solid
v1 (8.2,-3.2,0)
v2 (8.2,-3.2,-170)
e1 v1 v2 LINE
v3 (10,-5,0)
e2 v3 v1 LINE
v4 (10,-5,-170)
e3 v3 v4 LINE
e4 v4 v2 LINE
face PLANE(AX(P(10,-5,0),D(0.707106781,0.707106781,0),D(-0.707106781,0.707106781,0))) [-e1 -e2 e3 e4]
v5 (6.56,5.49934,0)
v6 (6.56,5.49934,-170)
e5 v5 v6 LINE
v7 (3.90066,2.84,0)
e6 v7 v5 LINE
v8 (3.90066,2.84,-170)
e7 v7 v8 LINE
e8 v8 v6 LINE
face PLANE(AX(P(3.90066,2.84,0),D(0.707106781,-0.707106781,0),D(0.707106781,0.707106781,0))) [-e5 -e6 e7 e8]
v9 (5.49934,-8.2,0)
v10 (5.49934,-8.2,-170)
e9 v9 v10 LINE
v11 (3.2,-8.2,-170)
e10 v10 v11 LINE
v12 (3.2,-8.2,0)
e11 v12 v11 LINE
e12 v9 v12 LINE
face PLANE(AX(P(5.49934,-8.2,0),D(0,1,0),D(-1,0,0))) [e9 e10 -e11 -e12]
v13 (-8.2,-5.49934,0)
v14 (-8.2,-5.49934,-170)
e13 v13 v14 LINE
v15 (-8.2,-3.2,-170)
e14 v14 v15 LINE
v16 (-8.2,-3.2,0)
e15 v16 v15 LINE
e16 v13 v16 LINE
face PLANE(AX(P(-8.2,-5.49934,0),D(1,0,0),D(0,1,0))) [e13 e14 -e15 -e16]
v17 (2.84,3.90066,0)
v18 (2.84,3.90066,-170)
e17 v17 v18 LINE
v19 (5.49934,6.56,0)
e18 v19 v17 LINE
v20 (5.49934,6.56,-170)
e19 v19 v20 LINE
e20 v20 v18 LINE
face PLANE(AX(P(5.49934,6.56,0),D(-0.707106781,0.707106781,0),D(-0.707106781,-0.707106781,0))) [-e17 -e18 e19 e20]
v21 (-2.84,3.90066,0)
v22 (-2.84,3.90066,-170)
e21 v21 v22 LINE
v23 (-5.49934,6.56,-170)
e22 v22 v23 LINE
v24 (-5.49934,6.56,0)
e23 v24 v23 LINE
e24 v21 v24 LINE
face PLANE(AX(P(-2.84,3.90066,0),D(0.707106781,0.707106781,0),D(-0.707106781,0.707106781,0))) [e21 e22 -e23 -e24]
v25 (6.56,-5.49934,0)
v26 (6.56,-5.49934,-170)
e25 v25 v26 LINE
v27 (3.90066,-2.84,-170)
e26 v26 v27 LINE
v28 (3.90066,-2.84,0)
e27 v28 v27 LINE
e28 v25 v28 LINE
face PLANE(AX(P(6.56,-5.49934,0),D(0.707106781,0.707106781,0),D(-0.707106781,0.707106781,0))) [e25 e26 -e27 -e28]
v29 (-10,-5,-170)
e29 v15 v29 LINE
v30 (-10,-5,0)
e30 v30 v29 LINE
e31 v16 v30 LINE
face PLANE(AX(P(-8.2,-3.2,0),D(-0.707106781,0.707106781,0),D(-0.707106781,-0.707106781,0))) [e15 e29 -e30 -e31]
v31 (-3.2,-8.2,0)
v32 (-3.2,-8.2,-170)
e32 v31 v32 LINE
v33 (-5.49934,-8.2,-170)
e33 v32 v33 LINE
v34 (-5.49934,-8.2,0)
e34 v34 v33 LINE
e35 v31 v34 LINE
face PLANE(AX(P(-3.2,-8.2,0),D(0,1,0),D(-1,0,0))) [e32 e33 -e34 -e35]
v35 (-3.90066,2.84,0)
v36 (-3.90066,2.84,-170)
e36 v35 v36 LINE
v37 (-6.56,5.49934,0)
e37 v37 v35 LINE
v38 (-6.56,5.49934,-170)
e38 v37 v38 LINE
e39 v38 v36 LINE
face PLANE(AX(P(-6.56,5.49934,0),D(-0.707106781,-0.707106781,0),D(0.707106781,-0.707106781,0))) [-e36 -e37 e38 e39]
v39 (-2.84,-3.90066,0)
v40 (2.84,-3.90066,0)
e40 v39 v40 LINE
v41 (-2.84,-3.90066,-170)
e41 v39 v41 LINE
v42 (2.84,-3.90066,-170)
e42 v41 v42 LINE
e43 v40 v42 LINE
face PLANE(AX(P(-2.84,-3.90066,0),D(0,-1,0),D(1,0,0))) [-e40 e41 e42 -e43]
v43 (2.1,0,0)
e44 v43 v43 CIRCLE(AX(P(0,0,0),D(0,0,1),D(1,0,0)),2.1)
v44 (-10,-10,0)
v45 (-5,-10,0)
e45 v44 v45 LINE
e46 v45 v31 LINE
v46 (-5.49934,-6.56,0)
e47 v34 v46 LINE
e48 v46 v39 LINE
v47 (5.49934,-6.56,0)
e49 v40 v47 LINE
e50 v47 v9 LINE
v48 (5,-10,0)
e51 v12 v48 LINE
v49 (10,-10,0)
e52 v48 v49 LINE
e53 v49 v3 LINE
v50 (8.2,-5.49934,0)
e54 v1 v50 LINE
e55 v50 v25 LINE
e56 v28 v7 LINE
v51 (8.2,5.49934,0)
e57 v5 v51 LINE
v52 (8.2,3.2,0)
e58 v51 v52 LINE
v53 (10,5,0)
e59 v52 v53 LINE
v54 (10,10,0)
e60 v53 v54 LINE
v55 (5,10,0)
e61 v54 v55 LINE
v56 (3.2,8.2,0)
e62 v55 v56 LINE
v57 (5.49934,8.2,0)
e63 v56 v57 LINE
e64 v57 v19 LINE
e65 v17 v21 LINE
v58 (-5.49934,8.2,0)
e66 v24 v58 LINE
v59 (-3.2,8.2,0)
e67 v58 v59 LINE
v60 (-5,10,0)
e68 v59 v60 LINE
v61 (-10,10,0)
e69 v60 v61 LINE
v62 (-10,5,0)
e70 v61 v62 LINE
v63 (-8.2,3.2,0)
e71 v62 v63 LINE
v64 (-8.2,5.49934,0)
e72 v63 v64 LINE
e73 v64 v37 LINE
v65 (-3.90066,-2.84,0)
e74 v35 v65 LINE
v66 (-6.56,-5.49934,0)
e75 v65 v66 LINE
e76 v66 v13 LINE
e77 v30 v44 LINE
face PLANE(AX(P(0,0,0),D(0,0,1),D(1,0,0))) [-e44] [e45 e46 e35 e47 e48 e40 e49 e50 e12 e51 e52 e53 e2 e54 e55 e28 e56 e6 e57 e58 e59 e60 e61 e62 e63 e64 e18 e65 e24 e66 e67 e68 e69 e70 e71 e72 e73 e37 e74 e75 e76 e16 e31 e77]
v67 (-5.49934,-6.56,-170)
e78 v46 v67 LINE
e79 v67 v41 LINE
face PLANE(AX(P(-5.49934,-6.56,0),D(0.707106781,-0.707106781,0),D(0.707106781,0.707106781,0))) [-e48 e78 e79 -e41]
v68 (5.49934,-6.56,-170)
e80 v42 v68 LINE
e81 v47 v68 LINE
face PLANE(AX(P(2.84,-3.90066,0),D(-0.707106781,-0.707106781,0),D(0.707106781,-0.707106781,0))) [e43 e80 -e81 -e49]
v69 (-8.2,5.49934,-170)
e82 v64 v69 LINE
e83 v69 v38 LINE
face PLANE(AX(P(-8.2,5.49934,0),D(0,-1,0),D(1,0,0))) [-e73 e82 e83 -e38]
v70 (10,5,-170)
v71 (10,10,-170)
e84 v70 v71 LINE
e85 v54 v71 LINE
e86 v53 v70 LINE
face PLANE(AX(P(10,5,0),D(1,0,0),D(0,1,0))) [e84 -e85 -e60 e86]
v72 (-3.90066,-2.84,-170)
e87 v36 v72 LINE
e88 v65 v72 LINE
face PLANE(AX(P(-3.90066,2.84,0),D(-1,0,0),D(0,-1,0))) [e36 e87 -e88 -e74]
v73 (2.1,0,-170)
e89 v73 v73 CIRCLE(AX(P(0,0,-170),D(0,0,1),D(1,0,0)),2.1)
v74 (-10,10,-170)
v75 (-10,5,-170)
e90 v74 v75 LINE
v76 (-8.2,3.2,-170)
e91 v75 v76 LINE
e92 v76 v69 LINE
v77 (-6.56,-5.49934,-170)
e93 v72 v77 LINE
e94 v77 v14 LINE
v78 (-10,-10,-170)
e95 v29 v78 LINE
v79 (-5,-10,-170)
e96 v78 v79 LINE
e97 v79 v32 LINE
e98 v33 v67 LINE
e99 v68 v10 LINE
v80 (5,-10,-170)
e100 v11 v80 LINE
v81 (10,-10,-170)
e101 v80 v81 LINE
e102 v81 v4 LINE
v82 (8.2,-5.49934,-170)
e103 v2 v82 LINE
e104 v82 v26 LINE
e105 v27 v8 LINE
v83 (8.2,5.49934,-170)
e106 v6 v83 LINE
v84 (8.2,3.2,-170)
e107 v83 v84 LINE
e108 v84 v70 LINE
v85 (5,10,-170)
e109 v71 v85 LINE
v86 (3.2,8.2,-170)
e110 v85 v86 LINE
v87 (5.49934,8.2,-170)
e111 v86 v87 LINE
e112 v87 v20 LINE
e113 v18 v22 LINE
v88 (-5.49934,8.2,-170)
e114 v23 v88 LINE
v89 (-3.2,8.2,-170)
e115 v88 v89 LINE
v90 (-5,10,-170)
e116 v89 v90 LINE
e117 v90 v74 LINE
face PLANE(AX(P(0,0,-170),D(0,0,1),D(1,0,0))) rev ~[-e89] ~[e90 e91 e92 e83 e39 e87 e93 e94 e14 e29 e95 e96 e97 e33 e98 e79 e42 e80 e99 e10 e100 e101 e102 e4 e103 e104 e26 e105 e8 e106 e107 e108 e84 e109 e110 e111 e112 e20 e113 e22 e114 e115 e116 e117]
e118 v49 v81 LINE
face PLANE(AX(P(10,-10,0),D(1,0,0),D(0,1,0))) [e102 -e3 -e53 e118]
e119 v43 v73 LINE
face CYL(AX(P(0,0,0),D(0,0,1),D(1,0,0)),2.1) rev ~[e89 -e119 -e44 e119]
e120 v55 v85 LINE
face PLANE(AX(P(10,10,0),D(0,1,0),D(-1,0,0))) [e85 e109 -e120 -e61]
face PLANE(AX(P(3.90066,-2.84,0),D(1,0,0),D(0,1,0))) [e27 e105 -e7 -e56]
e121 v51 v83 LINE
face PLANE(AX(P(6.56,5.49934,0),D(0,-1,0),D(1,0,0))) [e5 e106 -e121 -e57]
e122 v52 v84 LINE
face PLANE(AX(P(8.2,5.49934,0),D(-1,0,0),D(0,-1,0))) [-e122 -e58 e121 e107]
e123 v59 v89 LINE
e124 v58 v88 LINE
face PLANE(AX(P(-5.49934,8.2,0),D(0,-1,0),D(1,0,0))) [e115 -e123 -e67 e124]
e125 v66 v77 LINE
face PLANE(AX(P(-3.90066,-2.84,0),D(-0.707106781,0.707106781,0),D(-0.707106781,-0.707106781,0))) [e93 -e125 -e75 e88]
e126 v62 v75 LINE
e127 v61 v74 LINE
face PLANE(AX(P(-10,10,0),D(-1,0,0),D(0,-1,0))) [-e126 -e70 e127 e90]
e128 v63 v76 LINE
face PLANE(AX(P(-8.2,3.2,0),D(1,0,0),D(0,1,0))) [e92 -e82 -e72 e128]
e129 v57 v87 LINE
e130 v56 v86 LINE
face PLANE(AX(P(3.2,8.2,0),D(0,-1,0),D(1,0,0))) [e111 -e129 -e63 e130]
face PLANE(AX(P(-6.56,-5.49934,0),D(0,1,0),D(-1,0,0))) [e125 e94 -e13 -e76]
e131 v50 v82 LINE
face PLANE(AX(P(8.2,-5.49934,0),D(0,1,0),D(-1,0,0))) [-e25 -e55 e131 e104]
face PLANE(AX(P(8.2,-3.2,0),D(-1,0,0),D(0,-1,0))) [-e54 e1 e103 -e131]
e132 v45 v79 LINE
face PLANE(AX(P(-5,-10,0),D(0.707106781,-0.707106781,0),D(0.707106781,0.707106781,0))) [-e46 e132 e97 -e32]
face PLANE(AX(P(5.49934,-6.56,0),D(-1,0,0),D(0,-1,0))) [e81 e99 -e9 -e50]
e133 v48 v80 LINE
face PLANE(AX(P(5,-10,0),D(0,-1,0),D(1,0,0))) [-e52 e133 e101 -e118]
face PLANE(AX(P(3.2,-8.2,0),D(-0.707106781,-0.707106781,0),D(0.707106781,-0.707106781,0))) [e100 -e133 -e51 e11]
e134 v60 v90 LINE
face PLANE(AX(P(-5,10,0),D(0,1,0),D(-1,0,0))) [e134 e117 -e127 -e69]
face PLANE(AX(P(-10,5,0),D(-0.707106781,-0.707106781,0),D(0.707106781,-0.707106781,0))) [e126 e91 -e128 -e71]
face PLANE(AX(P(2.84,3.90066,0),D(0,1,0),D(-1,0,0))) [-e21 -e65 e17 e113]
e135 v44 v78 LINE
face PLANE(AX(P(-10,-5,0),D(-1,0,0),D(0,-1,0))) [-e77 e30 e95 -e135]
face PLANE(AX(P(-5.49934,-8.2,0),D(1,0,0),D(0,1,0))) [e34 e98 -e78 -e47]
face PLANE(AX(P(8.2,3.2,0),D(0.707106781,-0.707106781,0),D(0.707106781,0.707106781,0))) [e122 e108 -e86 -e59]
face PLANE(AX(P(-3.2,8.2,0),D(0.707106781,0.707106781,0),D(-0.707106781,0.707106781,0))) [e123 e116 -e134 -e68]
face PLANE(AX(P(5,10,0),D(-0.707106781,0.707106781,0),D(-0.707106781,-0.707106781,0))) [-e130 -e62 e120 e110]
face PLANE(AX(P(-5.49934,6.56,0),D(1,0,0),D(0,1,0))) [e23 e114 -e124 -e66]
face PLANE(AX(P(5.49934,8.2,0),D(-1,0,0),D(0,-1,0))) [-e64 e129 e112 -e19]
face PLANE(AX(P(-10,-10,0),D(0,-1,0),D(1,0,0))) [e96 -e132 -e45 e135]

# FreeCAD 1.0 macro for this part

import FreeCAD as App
import Part
import Sketcher
from FreeCAD import Vector

doc = App.newDocument("Part")
body = doc.addObject("PartDesign::Body", "Body")

# Sketch on XY plane
sketch1 = body.newObject("Sketcher::SketchObject", "Sketch")
sketch1.AttachmentSupport = (doc.getObject("XY_Plane"), [""])
sketch1.MapMode = "FlatFace"
sketch1.addGeometry(Part.LineSegment(Vector(-10, 10, 0), Vector(-10, 5, 0)), False)
sketch1.addGeometry(Part.LineSegment(Vector(-10, 5, 0), Vector(-8.2, 3.2, 0)), False)
sketch1.addGeometry(Part.LineSegment(Vector(-8.2, 3.2, 0), Vector(-8.2, 5.5, 0)), False)
sketch1.addGeometry(Part.LineSegment(Vector(-8.2, 5.5, 0), Vector(-6.6, 5.5, 0)), False)
sketch1.addGeometry(Part.LineSegment(Vector(-6.6, 5.5, 0), Vector(-3.9, 2.8, 0)), False)
sketch1.addGeometry(Part.LineSegment(Vector(-3.9, 2.8, 0), Vector(-3.9, -2.8, 0)), False)
sketch1.addGeometry(Part.LineSegment(Vector(-3.9, -2.8, 0), Vector(-6.6, -5.5, 0)), False)
sketch1.addGeometry(Part.LineSegment(Vector(-6.6, -5.5, 0), Vector(-8.2, -5.5, 0)), False)
sketch1.addGeometry(Part.LineSegment(Vector(-8.2, -5.5, 0), Vector(-8.2, -3.2, 0)), False)
sketch1.addGeometry(Part.LineSegment(Vector(-8.2, -3.2, 0), Vector(-10, -5, 0)), False)
sketch1.addGeometry(Part.LineSegment(Vector(-10, -5, 0), Vector(-10, -10, 0)), False)
sketch1.addGeometry(Part.LineSegment(Vector(-10, -10, 0), Vector(-5, -10, 0)), False)
sketch1.addGeometry(Part.LineSegment(Vector(-5, -10, 0), Vector(-3.2, -8.2, 0)), False)
sketch1.addGeometry(Part.LineSegment(Vector(-3.2, -8.2, 0), Vector(-5.5, -8.2, 0)), False)
sketch1.addGeometry(Part.LineSegment(Vector(-5.5, -8.2, 0), Vector(-5.5, -6.6, 0)), False)
sketch1.addGeometry(Part.LineSegment(Vector(-5.5, -6.6, 0), Vector(-2.8, -3.9, 0)), False)
sketch1.addGeometry(Part.LineSegment(Vector(-2.8, -3.9, 0), Vector(2.8, -3.9, 0)), False)
sketch1.addGeometry(Part.LineSegment(Vector(2.8, -3.9, 0), Vector(5.5, -6.6, 0)), False)
sketch1.addGeometry(Part.LineSegment(Vector(5.5, -6.6, 0), Vector(5.5, -8.2, 0)), False)
sketch1.addGeometry(Part.LineSegment(Vector(5.5, -8.2, 0), Vector(3.2, -8.2, 0)), False)
sketch1.addGeometry(Part.LineSegment(Vector(3.2, -8.2, 0), Vector(5, -10, 0)), False)
sketch1.addGeometry(Part.LineSegment(Vector(5, -10, 0), Vector(10, -10, 0)), False)
sketch1.addGeometry(Part.LineSegment(Vector(10, -10, 0), Vector(10, -5, 0)), False)
sketch1.addGeometry(Part.LineSegment(Vector(10, -5, 0), Vector(8.2, -3.2, 0)), False)
sketch1.addGeometry(Part.LineSegment(Vector(8.2, -3.2, 0), Vector(8.2, -5.5, 0)), False)
sketch1.addGeometry(Part.LineSegment(Vector(8.2, -5.5, 0), Vector(6.6, -5.5, 0)), False)
sketch1.addGeometry(Part.LineSegment(Vector(6.6, -5.5, 0), Vector(3.9, -2.8, 0)), False)
sketch1.addGeometry(Part.LineSegment(Vector(3.9, -2.8, 0), Vector(3.9, 2.8, 0)), False)
sketch1.addGeometry(Part.LineSegment(Vector(3.9, 2.8, 0), Vector(6.6, 5.5, 0)), False)
sketch1.addGeometry(Part.LineSegment(Vector(6.6, 5.5, 0), Vector(8.2, 5.5, 0)), False)
sketch1.addGeometry(Part.LineSegment(Vector(8.2, 5.5, 0), Vector(8.2, 3.2, 0)), False)
sketch1.addGeometry(Part.LineSegment(Vector(8.2, 3.2, 0), Vector(10, 5, 0)), False)
sketch1.addGeometry(Part.LineSegment(Vector(10, 5, 0), Vector(10, 10, 0)), False)
sketch1.addGeometry(Part.LineSegment(Vector(10, 10, 0), Vector(5, 10, 0)), False)
sketch1.addGeometry(Part.LineSegment(Vector(5, 10, 0), Vector(3.2, 8.2, 0)), False)
sketch1.addGeometry(Part.LineSegment(Vector(3.2, 8.2, 0), Vector(5.5, 8.2, 0)), False)
sketch1.addGeometry(Part.LineSegment(Vector(5.5, 8.2, 0), Vector(5.5, 6.6, 0)), False)
sketch1.addGeometry(Part.LineSegment(Vector(5.5, 6.6, 0), Vector(2.8, 3.9, 0)), False)
sketch1.addGeometry(Part.LineSegment(Vector(2.8, 3.9, 0), Vector(-2.8, 3.9, 0)), False)
sketch1.addGeometry(Part.LineSegment(Vector(-2.8, 3.9, 0), Vector(-5.5, 6.6, 0)), False)
sketch1.addGeometry(Part.LineSegment(Vector(-5.5, 6.6, 0), Vector(-5.5, 8.2, 0)), False)
sketch1.addGeometry(Part.LineSegment(Vector(-5.5, 8.2, 0), Vector(-3.2, 8.2, 0)), False)
sketch1.addGeometry(Part.LineSegment(Vector(-3.2, 8.2, 0), Vector(-5, 10, 0)), False)
sketch1.addGeometry(Part.LineSegment(Vector(-5, 10, 0), Vector(-10, 10, 0)), False)
sketch1.addGeometry(Part.Circle(Vector(0, 0, 0), Vector(0, 0, 1), 2.1), False)
sketch1.addConstraint(Sketcher.Constraint("Coincident", 0, 2, 1, 1))
sketch1.addConstraint(Sketcher.Constraint("Coincident", 1, 2, 2, 1))
sketch1.addConstraint(Sketcher.Constraint("Coincident", 2, 2, 3, 1))
sketch1.addConstraint(Sketcher.Constraint("Coincident", 3, 2, 4, 1))
sketch1.addConstraint(Sketcher.Constraint("Coincident", 4, 2, 5, 1))
sketch1.addConstraint(Sketcher.Constraint("Coincident", 5, 2, 6, 1))
sketch1.addConstraint(Sketcher.Constraint("Coincident", 6, 2, 7, 1))
sketch1.addConstraint(Sketcher.Constraint("Coincident", 7, 2, 8, 1))
sketch1.addConstraint(Sketcher.Constraint("Coincident", 8, 2, 9, 1))
sketch1.addConstraint(Sketcher.Constraint("Coincident", 9, 2, 10, 1))
sketch1.addConstraint(Sketcher.Constraint("Coincident", 10, 2, 11, 1))
sketch1.addConstraint(Sketcher.Constraint("Coincident", 11, 2, 12, 1))
sketch1.addConstraint(Sketcher.Constraint("Coincident", 12, 2, 13, 1))
sketch1.addConstraint(Sketcher.Constraint("Coincident", 13, 2, 14, 1))
sketch1.addConstraint(Sketcher.Constraint("Coincident", 14, 2, 15, 1))
sketch1.addConstraint(Sketcher.Constraint("Coincident", 15, 2, 16, 1))
sketch1.addConstraint(Sketcher.Constraint("Coincident", 16, 2, 17, 1))
sketch1.addConstraint(Sketcher.Constraint("Coincident", 17, 2, 18, 1))
sketch1.addConstraint(Sketcher.Constraint("Coincident", 18, 2, 19, 1))
sketch1.addConstraint(Sketcher.Constraint("Coincident", 19, 2, 20, 1))
sketch1.addConstraint(Sketcher.Constraint("Coincident", 20, 2, 21, 1))
sketch1.addConstraint(Sketcher.Constraint("Coincident", 21, 2, 22, 1))
sketch1.addConstraint(Sketcher.Constraint("Coincident", 22, 2, 23, 1))
sketch1.addConstraint(Sketcher.Constraint("Coincident", 23, 2, 24, 1))
sketch1.addConstraint(Sketcher.Constraint("Coincident", 24, 2, 25, 1))
sketch1.addConstraint(Sketcher.Constraint("Coincident", 25, 2, 26, 1))
sketch1.addConstraint(Sketcher.Constraint("Coincident", 26, 2, 27, 1))
sketch1.addConstraint(Sketcher.Constraint("Coincident", 27, 2, 28, 1))
sketch1.addConstraint(Sketcher.Constraint("Coincident", 28, 2, 29, 1))
sketch1.addConstraint(Sketcher.Constraint("Coincident", 29, 2, 30, 1))
sketch1.addConstraint(Sketcher.Constraint("Coincident", 30, 2, 31, 1))
sketch1.addConstraint(Sketcher.Constraint("Coincident", 31, 2, 32, 1))
sketch1.addConstraint(Sketcher.Constraint("Coincident", 32, 2, 33, 1))
sketch1.addConstraint(Sketcher.Constraint("Coincident", 33, 2, 34, 1))
sketch1.addConstraint(Sketcher.Constraint("Coincident", 34, 2, 35, 1))
sketch1.addConstraint(Sketcher.Constraint("Coincident", 35, 2, 36, 1))
sketch1.addConstraint(Sketcher.Constraint("Coincident", 36, 2, 37, 1))
sketch1.addConstraint(Sketcher.Constraint("Coincident", 37, 2, 38, 1))
sketch1.addConstraint(Sketcher.Constraint("Coincident", 38, 2, 39, 1))
sketch1.addConstraint(Sketcher.Constraint("Coincident", 39, 2, 40, 1))
sketch1.addConstraint(Sketcher.Constraint("Coincident", 40, 2, 41, 1))
sketch1.addConstraint(Sketcher.Constraint("Coincident", 41, 2, 42, 1))
sketch1.addConstraint(Sketcher.Constraint("Coincident", 42, 2, 43, 1))
sketch1.addConstraint(Sketcher.Constraint("Coincident", 43, 2, 0, 1))
sketch1.addConstraint(Sketcher.Constraint("Vertical", 0))
sketch1.addConstraint(Sketcher.Constraint("Vertical", 2))
sketch1.addConstraint(Sketcher.Constraint("Horizontal", 3))
sketch1.addConstraint(Sketcher.Constraint("Vertical", 5))
sketch1.addConstraint(Sketcher.Constraint("Horizontal", 7))
sketch1.addConstraint(Sketcher.Constraint("Vertical", 8))
sketch1.addConstraint(Sketcher.Constraint("Vertical", 10))
sketch1.addConstraint(Sketcher.Constraint("Horizontal", 11))
sketch1.addConstraint(Sketcher.Constraint("Horizontal", 13))
sketch1.addConstraint(Sketcher.Constraint("Vertical", 14))
sketch1.addConstraint(Sketcher.Constraint("Horizontal", 16))
sketch1.addConstraint(Sketcher.Constraint("Vertical", 18))
sketch1.addConstraint(Sketcher.Constraint("Horizontal", 19))
sketch1.addConstraint(Sketcher.Constraint("Horizontal", 21))
sketch1.addConstraint(Sketcher.Constraint("Vertical", 22))
sketch1.addConstraint(Sketcher.Constraint("Vertical", 24))
sketch1.addConstraint(Sketcher.Constraint("Horizontal", 25))
sketch1.addConstraint(Sketcher.Constraint("Vertical", 27))
sketch1.addConstraint(Sketcher.Constraint("Horizontal", 29))
sketch1.addConstraint(Sketcher.Constraint("Vertical", 30))
sketch1.addConstraint(Sketcher.Constraint("Vertical", 32))
sketch1.addConstraint(Sketcher.Constraint("Horizontal", 33))
sketch1.addConstraint(Sketcher.Constraint("Horizontal", 35))
sketch1.addConstraint(Sketcher.Constraint("Vertical", 36))
sketch1.addConstraint(Sketcher.Constraint("Horizontal", 38))
sketch1.addConstraint(Sketcher.Constraint("Vertical", 40))
sketch1.addConstraint(Sketcher.Constraint("Horizontal", 41))
sketch1.addConstraint(Sketcher.Constraint("Horizontal", 43))
sketch1.addConstraint(Sketcher.Constraint("Coincident", 44, 3, -1, 1))
sketch1.addConstraint(Sketcher.Constraint("Symmetric", 0, 2, 22, 2, -1, 1))
sketch1.addConstraint(Sketcher.Constraint("Symmetric", 1, 2, 23, 2, -1, 1))
sketch1.addConstraint(Sketcher.Constraint("Symmetric", 3, 2, 25, 2, -1, 1))
sketch1.addConstraint(Sketcher.Constraint("Symmetric", 4, 2, 26, 2, -1, 1))
sketch1.addConstraint(Sketcher.Constraint("Symmetric", 6, 2, 28, 2, -1, 1))
sketch1.addConstraint(Sketcher.Constraint("Symmetric", 8, 2, 30, 2, -1, 1))
sketch1.addConstraint(Sketcher.Constraint("Symmetric", 9, 2, 31, 2, -1, 1))
sketch1.addConstraint(Sketcher.Constraint("Symmetric", 11, 2, 33, 2, -1, 1))
sketch1.addConstraint(Sketcher.Constraint("Symmetric", 12, 2, 34, 2, -1, 1))
sketch1.addConstraint(Sketcher.Constraint("Symmetric", 14, 2, 36, 2, -1, 1))
sketch1.addConstraint(Sketcher.Constraint("Symmetric", 15, 2, 37, 2, -1, 1))
sketch1.addConstraint(Sketcher.Constraint("Symmetric", 17, 2, 39, 2, -1, 1))
sketch1.addConstraint(Sketcher.Constraint("Symmetric", 19, 2, 41, 2, -1, 1))
sketch1.addConstraint(Sketcher.Constraint("Symmetric", 20, 2, 42, 2, -1, 1))
sketch1.addConstraint(Sketcher.Constraint("Symmetric", 14, 2, 17, 2, -2))
sketch1.addConstraint(Sketcher.Constraint("Symmetric", 12, 2, 19, 2, -2))
sketch1.addConstraint(Sketcher.Constraint("Symmetric", 11, 2, 20, 2, -2))
sketch1.addConstraint(Sketcher.Constraint("Symmetric", 9, 2, 22, 2, -2))
sketch1.addConstraint(Sketcher.Constraint("Symmetric", 8, 2, 23, 2, -2))
sketch1.addConstraint(Sketcher.Constraint("Symmetric", 6, 2, 25, 2, -2))
sketch1.addConstraint(Sketcher.Constraint("Parallel", 1, 4))
sketch1.addConstraint(Sketcher.Constraint("Perpendicular", 4, 6))
sketch1.addConstraint(Sketcher.Constraint("Parallel", 6, 9))
sketch1.addConstraint(Sketcher.Constraint("Parallel", 9, 12))
sketch1.addConstraint(Sketcher.Constraint("Parallel", 12, 15))
sketch1.addConstraint(Sketcher.Constraint("Perpendicular", 15, 17))
sketch1.addConstraint(Sketcher.Constraint("Perpendicular", 26, 28))
sketch1.addConstraint(Sketcher.Constraint("Perpendicular", 37, 39))
sketch1.addConstraint(Sketcher.Constraint("Equal", 43, 0))
sketch1.addConstraint(Sketcher.Constraint("Equal", 41, 2))
sketch1.addConstraint(Sketcher.Constraint("Equal", 38, 5))
sketch1.addConstraint(Sketcher.Constraint("Equal", 29, 14))
sketch1.addConstraint(Sketcher.Constraint("Equal", 9, 12))
sketch1.addConstraint(Sketcher.Constraint("Equal", 6, 15))
sketch1.addConstraint(Sketcher.Constraint("Diameter", 44, 4.2))
sketch1.addConstraint(Sketcher.Constraint("DistanceX", 11, 1, 11, 2, 5.0))
sketch1.addConstraint(Sketcher.Constraint("DistanceX", 0, 2, -1, 1, 10.0))
sketch1.addConstraint(Sketcher.Constraint("DistanceX", 3, 1, 3, 2, 1.64))
sketch1.addConstraint(Sketcher.Constraint("DistanceX", 16, 1, 16, 2, 5.68))
sketch1.addConstraint(Sketcher.Constraint("DistanceX", 1, 2, -1, 1, 8.2))
sketch1.addConstraint(Sketcher.Constraint("DistanceX", 13, 2, 13, 1, 2.29934))
pad1 = body.newObject("PartDesign::Pad", "Pad")
pad1.Profile = sketch1
pad1.Length = 170
pad1.Reversed = True

doc.recompute()
